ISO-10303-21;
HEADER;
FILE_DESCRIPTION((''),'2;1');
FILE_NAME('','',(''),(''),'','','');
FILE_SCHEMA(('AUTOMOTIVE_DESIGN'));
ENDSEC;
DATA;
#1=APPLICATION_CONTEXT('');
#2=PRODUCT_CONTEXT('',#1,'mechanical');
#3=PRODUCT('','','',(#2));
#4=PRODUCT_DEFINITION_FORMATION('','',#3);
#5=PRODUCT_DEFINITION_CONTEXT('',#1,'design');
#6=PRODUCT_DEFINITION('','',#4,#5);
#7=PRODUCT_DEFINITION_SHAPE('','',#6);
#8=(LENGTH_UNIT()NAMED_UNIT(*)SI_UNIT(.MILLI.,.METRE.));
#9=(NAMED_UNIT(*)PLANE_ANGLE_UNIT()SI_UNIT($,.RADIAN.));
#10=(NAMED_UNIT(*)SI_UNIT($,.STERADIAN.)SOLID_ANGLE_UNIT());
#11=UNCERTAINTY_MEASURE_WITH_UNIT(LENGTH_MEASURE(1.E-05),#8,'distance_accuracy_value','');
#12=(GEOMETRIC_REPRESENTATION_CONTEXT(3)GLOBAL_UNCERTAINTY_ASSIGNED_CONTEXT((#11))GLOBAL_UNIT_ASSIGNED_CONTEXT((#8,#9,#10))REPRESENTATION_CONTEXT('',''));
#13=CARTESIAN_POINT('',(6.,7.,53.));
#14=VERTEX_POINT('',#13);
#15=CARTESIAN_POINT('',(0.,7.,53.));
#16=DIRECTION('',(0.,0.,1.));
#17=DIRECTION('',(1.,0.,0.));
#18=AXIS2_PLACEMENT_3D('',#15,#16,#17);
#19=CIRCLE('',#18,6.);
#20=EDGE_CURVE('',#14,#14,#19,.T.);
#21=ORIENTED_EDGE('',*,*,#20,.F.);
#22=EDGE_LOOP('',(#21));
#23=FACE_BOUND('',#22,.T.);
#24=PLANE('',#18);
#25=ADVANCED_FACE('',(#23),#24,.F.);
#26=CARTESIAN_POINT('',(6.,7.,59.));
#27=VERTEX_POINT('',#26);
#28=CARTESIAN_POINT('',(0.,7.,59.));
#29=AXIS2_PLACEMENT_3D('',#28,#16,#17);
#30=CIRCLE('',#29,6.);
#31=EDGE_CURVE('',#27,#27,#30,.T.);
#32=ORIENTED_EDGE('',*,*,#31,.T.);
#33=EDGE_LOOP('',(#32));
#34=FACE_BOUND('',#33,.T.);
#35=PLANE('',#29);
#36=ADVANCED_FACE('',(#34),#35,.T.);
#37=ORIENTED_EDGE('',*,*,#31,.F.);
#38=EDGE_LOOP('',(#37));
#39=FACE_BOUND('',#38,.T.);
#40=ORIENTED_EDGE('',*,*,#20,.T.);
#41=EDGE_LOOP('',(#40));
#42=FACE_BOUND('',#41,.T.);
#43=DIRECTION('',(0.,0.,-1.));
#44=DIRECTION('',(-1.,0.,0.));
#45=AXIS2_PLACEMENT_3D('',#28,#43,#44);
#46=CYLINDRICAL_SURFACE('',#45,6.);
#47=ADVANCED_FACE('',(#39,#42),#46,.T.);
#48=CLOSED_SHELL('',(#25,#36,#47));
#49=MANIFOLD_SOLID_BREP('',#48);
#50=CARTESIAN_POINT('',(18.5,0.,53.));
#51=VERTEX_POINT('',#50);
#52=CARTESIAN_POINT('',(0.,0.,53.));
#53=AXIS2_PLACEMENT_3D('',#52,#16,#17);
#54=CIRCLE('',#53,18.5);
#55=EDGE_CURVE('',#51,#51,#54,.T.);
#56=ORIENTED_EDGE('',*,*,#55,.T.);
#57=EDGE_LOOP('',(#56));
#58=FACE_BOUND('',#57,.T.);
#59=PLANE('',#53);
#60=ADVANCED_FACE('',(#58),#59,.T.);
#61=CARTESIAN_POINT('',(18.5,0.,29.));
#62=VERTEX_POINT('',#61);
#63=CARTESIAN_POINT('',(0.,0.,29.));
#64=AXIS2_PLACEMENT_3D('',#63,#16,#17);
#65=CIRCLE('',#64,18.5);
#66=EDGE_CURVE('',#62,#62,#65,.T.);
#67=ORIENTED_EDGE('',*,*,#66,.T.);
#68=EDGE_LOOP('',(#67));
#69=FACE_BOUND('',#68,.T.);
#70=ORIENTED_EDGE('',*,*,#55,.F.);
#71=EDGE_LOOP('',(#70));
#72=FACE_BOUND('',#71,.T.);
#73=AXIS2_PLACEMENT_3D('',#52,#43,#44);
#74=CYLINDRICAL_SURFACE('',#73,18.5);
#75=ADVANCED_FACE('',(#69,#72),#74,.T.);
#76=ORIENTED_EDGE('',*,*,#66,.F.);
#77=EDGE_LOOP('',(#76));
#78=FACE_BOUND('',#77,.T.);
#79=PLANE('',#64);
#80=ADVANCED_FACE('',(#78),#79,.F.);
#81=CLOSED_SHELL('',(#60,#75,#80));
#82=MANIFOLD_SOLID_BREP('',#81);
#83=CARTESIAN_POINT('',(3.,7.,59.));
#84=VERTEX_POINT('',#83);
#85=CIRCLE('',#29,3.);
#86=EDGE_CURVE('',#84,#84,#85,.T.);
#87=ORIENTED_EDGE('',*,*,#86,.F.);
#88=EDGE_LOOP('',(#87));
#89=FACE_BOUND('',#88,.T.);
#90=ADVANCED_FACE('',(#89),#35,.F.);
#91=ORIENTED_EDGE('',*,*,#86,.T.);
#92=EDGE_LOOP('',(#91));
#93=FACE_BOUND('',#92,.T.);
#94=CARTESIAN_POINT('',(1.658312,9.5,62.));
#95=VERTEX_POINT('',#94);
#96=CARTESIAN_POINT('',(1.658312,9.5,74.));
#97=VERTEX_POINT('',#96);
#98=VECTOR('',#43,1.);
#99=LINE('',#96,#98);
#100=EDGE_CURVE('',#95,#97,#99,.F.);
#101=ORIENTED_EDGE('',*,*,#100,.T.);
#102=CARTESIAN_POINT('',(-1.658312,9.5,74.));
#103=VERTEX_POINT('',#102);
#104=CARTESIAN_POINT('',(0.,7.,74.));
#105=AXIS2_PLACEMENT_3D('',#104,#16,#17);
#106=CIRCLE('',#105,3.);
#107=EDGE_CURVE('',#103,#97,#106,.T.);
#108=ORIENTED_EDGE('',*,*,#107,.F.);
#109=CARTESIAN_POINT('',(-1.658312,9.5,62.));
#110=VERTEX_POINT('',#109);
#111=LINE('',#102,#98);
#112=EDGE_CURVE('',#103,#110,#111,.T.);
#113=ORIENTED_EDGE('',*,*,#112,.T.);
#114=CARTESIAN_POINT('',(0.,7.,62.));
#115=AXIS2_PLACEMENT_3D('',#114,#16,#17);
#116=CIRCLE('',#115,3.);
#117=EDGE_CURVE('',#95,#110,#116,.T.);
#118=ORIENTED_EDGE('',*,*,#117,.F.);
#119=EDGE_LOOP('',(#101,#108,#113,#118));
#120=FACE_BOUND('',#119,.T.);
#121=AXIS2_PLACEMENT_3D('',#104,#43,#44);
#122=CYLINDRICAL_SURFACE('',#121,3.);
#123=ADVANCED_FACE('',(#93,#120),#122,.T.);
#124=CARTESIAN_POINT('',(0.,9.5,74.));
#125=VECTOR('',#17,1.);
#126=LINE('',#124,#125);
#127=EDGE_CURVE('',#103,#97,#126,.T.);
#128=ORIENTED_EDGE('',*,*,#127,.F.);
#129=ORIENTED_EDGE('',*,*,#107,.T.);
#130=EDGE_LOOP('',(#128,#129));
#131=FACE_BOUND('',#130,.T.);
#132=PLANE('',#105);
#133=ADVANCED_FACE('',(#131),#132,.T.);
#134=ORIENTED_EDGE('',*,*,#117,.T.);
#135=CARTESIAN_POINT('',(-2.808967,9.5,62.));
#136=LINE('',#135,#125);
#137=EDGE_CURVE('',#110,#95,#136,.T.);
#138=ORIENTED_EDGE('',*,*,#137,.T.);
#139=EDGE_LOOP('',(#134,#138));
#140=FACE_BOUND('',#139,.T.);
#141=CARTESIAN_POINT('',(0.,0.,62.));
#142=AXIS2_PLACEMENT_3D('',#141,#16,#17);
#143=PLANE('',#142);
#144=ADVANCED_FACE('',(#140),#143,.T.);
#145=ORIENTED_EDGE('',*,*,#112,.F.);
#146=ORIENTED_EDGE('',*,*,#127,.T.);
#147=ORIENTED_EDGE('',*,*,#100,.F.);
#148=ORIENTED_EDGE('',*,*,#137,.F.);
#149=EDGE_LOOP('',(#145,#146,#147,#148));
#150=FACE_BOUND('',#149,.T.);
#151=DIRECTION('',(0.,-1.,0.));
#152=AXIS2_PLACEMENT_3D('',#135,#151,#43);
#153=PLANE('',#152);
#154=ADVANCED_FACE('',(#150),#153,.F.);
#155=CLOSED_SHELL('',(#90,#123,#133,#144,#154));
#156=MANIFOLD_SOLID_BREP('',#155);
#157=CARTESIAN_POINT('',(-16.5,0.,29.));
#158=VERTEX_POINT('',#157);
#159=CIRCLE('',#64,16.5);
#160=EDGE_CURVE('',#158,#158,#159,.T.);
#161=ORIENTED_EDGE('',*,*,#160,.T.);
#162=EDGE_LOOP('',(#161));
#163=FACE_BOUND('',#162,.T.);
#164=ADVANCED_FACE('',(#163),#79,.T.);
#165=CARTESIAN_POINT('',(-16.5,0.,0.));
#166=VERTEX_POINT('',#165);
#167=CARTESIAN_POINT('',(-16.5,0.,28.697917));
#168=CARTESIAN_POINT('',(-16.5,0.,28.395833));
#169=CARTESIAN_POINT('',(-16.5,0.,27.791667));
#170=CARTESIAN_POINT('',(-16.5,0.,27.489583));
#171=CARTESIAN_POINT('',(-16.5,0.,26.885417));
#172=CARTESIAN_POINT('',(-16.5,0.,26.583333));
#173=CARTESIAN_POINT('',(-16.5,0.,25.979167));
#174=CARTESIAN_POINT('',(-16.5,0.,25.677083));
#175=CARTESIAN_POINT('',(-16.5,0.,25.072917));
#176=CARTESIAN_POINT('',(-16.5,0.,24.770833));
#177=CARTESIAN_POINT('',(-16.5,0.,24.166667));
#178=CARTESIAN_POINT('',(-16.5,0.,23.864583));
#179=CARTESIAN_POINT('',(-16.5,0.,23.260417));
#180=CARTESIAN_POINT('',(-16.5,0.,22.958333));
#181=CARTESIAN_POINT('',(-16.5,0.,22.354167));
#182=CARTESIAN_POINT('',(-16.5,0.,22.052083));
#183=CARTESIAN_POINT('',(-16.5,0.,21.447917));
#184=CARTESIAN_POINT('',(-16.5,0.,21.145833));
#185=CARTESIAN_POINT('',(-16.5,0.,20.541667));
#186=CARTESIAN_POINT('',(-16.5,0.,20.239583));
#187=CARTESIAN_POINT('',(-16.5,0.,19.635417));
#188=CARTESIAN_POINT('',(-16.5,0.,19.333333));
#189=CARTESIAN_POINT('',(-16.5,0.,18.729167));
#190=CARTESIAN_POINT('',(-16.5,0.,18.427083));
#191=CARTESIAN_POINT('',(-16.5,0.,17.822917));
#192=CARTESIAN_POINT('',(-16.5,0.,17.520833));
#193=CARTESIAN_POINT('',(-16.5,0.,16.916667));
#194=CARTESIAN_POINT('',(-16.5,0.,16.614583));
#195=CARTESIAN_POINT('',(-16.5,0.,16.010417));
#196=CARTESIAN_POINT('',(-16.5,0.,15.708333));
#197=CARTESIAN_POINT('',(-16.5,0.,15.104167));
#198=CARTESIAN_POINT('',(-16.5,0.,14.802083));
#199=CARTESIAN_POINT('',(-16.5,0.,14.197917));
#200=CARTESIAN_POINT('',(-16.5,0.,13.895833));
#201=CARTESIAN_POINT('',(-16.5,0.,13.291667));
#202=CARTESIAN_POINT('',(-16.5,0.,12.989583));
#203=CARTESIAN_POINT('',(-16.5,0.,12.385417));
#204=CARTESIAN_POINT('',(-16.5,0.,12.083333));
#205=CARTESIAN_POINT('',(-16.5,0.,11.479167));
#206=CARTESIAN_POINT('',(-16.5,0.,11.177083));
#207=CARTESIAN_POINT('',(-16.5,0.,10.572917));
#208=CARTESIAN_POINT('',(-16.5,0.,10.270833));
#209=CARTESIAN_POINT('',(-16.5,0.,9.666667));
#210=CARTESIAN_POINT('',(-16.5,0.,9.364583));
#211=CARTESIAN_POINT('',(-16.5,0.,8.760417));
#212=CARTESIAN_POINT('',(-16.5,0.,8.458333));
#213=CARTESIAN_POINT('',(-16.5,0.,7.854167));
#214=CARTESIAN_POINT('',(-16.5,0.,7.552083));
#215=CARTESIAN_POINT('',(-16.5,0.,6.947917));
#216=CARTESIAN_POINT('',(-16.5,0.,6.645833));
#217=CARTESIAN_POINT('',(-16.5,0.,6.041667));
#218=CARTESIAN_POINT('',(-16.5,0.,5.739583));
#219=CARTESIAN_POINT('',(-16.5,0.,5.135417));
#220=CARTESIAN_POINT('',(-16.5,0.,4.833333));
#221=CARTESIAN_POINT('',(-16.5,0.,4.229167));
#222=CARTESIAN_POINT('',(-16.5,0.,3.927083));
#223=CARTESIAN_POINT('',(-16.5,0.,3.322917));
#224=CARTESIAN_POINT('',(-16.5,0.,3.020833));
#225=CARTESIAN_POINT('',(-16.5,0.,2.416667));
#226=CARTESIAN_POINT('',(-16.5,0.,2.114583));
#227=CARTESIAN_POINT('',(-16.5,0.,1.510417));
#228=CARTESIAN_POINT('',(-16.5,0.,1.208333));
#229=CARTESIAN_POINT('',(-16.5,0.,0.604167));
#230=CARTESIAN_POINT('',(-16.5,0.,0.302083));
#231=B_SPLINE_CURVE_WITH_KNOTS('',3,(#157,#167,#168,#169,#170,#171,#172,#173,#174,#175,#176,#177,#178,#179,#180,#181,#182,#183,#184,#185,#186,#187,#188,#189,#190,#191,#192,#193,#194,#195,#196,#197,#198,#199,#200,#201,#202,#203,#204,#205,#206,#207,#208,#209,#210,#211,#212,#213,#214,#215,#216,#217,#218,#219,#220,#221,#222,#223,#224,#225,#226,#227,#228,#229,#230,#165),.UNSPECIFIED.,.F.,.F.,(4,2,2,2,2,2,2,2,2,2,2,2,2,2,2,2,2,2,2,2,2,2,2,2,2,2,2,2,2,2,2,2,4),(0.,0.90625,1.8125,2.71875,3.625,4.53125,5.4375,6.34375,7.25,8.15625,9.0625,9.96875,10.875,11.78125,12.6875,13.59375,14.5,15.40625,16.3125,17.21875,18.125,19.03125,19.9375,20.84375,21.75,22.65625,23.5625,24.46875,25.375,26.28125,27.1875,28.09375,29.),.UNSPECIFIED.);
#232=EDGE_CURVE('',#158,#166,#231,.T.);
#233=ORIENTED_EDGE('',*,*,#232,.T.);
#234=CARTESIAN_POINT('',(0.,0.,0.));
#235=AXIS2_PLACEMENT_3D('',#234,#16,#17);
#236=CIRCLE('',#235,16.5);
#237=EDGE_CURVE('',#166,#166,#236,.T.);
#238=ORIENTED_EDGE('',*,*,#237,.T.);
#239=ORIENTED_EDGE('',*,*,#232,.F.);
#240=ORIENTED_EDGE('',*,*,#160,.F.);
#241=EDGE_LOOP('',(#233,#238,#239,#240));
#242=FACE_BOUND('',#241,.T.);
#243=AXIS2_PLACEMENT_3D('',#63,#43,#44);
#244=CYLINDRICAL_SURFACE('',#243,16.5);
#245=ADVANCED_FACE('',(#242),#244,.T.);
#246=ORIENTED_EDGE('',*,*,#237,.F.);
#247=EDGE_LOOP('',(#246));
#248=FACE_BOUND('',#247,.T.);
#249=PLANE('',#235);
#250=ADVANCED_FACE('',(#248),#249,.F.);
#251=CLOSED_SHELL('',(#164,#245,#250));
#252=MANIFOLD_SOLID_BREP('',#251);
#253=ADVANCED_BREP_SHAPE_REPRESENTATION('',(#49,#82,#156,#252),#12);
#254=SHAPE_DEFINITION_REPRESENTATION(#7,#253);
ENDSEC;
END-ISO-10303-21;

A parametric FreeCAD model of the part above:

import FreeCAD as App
import Part
import Sketcher

V = App.Vector
Q = App.Units.Quantity


def add_polygon(sketch, points):
    """Adds a closed chain of lines whose ends are joined by coincident constraints."""
    first, n = sketch.GeometryCount, len(points)
    for a, b in zip(points, points[1:] + points[:1]):
        sketch.addGeometry(Part.LineSegment(App.Vector(*a, 0), App.Vector(*b, 0)), False)
    for i in range(n):
        sketch.addConstraint(Sketcher.Constraint("Coincident", first + i, 2, first + (i + 1) % n, 1))

doc = App.newDocument("Part")
params = doc.addObject("Spreadsheet::Sheet", "Params")
for row, (alias, value) in enumerate([
    ("sketch1_diameter", "33 mm"),
    ("pad1_length", "29 mm"),
    ("sketch2_diameter", "37 mm"),
    ("pad2_length", "24 mm"),
    ("sketch3_diameter", "12 mm"),
    ("pad3_length", "6 mm"),
    ("sketch4_diameter", "6 mm"),
    ("pad4_length", "15 mm"),
    ("pocket1_length", "12 mm"),
], start=1):
    params.set(f"A{row}", alias)
    params.set(f"B{row}", "=" + value)
    params.setAlias(f"B{row}", alias)

body = doc.addObject("PartDesign::Body", "Body")

# Sketch on XY plane
sketch1 = doc.addObject("Sketcher::SketchObject", "Sketch")
body.addObject(sketch1)
sketch1.AttachmentSupport = (doc.XY_Plane, [""])
sketch1.MapMode = "FlatFace"
sketch1.addGeometry(Part.Circle(V(0, 0, 0), V(0, 0, 1), 16.5), False)
sketch1.addConstraint(Sketcher.Constraint("Coincident", 0, 3, -1, 1))
sketch1.addConstraint(Sketcher.Constraint("Diameter", 0, Q("33 mm")))
sketch1.setExpression("Constraints[1]", "Params.sketch1_diameter")
pad1 = doc.addObject("PartDesign::Pad", "Pad")
body.addObject(pad1)
pad1.Profile = sketch1
pad1.setExpression("Length", "Params.pad1_length")
body2 = doc.addObject("PartDesign::Body", "Body001")

# Sketch on XY plane
sketch2 = doc.addObject("Sketcher::SketchObject", "Sketch001")
body2.addObject(sketch2)
sketch2.AttachmentSupport = (doc.getObject("XY_Plane001"), [""])
sketch2.MapMode = "FlatFace"
sketch2.AttachmentOffset = App.Placement(V(0, 0, 29), App.Rotation())
sketch2.addGeometry(Part.Circle(V(0, 0, 0), V(0, 0, 1), 18.5), False)
sketch2.addConstraint(Sketcher.Constraint("Coincident", 0, 3, -1, 1))
sketch2.addConstraint(Sketcher.Constraint("Diameter", 0, Q("37 mm")))
sketch2.setExpression("Constraints[1]", "Params.sketch2_diameter")
pad2 = doc.addObject("PartDesign::Pad", "Pad001")
body2.addObject(pad2)
pad2.Profile = sketch2
pad2.setExpression("Length", "Params.pad2_length")
body3 = doc.addObject("PartDesign::Body", "Body002")

# Sketch on XY plane
sketch3 = doc.addObject("Sketcher::SketchObject", "Sketch002")
body3.addObject(sketch3)
sketch3.AttachmentSupport = (doc.getObject("XY_Plane002"), [""])
sketch3.MapMode = "FlatFace"
sketch3.AttachmentOffset = App.Placement(V(0, 0, 53), App.Rotation())
sketch3.addGeometry(Part.Circle(V(0, 7, 0), V(0, 0, 1), 6), False)
sketch3.addConstraint(Sketcher.Constraint("PointOnObject", 0, 3, -2))
sketch3.addConstraint(Sketcher.Constraint("Diameter", 0, Q("12 mm")))
sketch3.addConstraint(Sketcher.Constraint("DistanceY", -1, 1, 0, 3, Q("7 mm")))
sketch3.setExpression("Constraints[1]", "Params.sketch3_diameter")
pad3 = doc.addObject("PartDesign::Pad", "Pad002")
body3.addObject(pad3)
pad3.Profile = sketch3
pad3.setExpression("Length", "Params.pad3_length")
body4 = doc.addObject("PartDesign::Body", "Body003")

# Sketch on XY plane
sketch4 = doc.addObject("Sketcher::SketchObject", "Sketch003")
body4.addObject(sketch4)
sketch4.AttachmentSupport = (doc.getObject("XY_Plane003"), [""])
sketch4.MapMode = "FlatFace"
sketch4.AttachmentOffset = App.Placement(V(0, 0, 59), App.Rotation())
sketch4.addGeometry(Part.Circle(V(0, 7, 0), V(0, 0, 1), 3), False)
sketch4.addConstraint(Sketcher.Constraint("PointOnObject", 0, 3, -2))
sketch4.addConstraint(Sketcher.Constraint("Diameter", 0, Q("6 mm")))
sketch4.addConstraint(Sketcher.Constraint("DistanceY", -1, 1, 0, 3, Q("7 mm")))
sketch4.setExpression("Constraints[1]", "Params.sketch4_diameter")
pad4 = doc.addObject("PartDesign::Pad", "Pad003")
body4.addObject(pad4)
pad4.Profile = sketch4
pad4.setExpression("Length", "Params.pad4_length")

# Sketch on XY plane
sketch5 = doc.addObject("Sketcher::SketchObject", "Sketch004")
body4.addObject(sketch5)
sketch5.AttachmentSupport = (doc.getObject("XY_Plane003"), [""])
sketch5.MapMode = "FlatFace"
sketch5.AttachmentOffset = App.Placement(V(0, 0, 74), App.Rotation())
add_polygon(sketch5, [(-2.808967, 11.755406), (-2.808967, 9.5), (3.175134, 9.5), (3.175134, 11.755406)])  # lines 0-3
sketch5.addConstraint(Sketcher.Constraint("Vertical", 0))
sketch5.addConstraint(Sketcher.Constraint("Horizontal", 1))
sketch5.addConstraint(Sketcher.Constraint("Vertical", 2))
sketch5.addConstraint(Sketcher.Constraint("Horizontal", 3))
sketch5.addConstraint(Sketcher.Constraint("DistanceY", -1, 1, 0, 2, Q("9.5 mm")))
sketch5.addConstraint(Sketcher.Constraint("DistanceX", 1, 1, 1, 2, Q("5.984101 mm")))
sketch5.addConstraint(Sketcher.Constraint("DistanceY", 0, 2, 0, 1, Q("2.255406 mm")))
sketch5.addConstraint(Sketcher.Constraint("DistanceX", 0, 2, -1, 1, Q("2.808967 mm")))
pocket1 = doc.addObject("PartDesign::Pocket", "Pocket")
body4.addObject(pocket1)
pocket1.Profile = sketch5
pocket1.setExpression("Length", "Params.pocket1_length")

doc.recompute()
